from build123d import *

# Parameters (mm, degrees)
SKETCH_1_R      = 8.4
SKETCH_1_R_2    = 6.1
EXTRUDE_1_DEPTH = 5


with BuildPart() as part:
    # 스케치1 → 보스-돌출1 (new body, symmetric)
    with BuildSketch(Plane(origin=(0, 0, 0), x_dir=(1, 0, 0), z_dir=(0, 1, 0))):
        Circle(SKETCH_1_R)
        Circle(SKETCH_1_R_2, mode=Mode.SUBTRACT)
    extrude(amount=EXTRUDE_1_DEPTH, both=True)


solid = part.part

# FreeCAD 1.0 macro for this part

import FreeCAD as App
import Part
import Sketcher

doc = App.newDocument("Part")
body = doc.addObject("PartDesign::Body", "Body")

# Sketch on XZ plane
sketch1 = body.newObject("Sketcher::SketchObject", "Sketch")
sketch1.AttachmentSupport = (doc.getObject("XZ_Plane"), [""])
sketch1.MapMode = "FlatFace"
sketch1.addGeometry([
    Part.Circle(App.Vector(0, 0, 0), App.Vector(0, 0, 1), 8),
    Part.Circle(App.Vector(0, 0, 0), App.Vector(0, 0, 1), 6),
], False)
sketch1.addConstraint([
    Sketcher.Constraint("Coincident", 0, 3, -1, 1),
    Sketcher.Constraint("Coincident", 1, 3, -1, 1),
    Sketcher.Constraint("Diameter", 0, 16.8),
    Sketcher.Constraint("Diameter", 1, 12.2),
])
pad1 = body.newObject("PartDesign::Pad", "Pad")
pad1.Profile = sketch1
pad1.Length = 10
pad1.Midplane = True

doc.recompute()
